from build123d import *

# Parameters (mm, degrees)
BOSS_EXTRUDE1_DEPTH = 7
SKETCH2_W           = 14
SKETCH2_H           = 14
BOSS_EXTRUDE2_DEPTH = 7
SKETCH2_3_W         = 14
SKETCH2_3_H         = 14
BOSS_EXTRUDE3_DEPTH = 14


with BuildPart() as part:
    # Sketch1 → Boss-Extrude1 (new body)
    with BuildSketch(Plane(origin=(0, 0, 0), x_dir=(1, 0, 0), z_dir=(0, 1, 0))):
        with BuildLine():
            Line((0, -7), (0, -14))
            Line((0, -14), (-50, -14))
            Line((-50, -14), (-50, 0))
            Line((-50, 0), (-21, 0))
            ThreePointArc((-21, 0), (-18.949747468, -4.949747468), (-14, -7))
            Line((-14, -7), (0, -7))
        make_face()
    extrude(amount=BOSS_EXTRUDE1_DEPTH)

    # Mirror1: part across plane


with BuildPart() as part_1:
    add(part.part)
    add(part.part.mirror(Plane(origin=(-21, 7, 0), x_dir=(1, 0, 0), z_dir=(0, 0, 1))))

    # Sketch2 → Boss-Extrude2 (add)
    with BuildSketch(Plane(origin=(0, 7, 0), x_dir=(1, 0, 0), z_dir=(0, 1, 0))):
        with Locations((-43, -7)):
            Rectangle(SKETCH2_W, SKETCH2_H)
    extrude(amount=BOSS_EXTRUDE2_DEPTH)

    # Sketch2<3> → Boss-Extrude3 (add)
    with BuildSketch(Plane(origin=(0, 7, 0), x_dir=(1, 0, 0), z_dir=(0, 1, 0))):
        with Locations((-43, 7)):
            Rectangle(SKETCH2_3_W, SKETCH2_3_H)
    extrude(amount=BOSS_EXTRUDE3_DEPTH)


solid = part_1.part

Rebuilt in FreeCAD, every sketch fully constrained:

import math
import FreeCAD as App
import Part
import Sketcher
Q = App.Units.Quantity


def add_polygon(sketch, points):
    """Adds a closed chain of lines whose ends are joined by coincident constraints."""
    first, n = sketch.GeometryCount, len(points)
    for a, b in zip(points, points[1:] + points[:1]):
        sketch.addGeometry(Part.LineSegment(App.Vector(*a, 0), App.Vector(*b, 0)), False)
    for i in range(n):
        sketch.addConstraint(Sketcher.Constraint("Coincident", first + i, 2, first + (i + 1) % n, 1))

doc = App.newDocument("Part")
body = doc.addObject("PartDesign::Body", "Body")

# Sketch on XZ plane
sketch1 = body.newObject("Sketcher::SketchObject", "Sketch")
sketch1.AttachmentSupport = (doc.getObject("XZ_Plane"), [""])
sketch1.MapMode = "FlatFace"
sketch1.addGeometry(Part.LineSegment(App.Vector(0, 14, 0), App.Vector(0, 7, 0)), False)
sketch1.addGeometry(Part.LineSegment(App.Vector(0, 7, 0), App.Vector(-14, 7, 0)), False)
sketch1.addGeometry(Part.ArcOfCircle(Part.Circle(App.Vector(-14, 0, 0), App.Vector(0, 0, 1), 7), math.radians(90), math.radians(180)), False)
sketch1.addGeometry(Part.LineSegment(App.Vector(-21, 0, 0), App.Vector(-50, 0, 0)), False)
sketch1.addGeometry(Part.LineSegment(App.Vector(-50, 0, 0), App.Vector(-50, 14, 0)), False)
sketch1.addGeometry(Part.LineSegment(App.Vector(-50, 14, 0), App.Vector(0, 14, 0)), False)
sketch1.addConstraint(Sketcher.Constraint("Coincident", 0, 2, 1, 1))
sketch1.addConstraint(Sketcher.Constraint("Tangent", 1, 2, 2, 1))
sketch1.addConstraint(Sketcher.Constraint("Coincident", 2, 2, 3, 1))
sketch1.addConstraint(Sketcher.Constraint("Coincident", 3, 2, 4, 1))
sketch1.addConstraint(Sketcher.Constraint("Coincident", 4, 2, 5, 1))
sketch1.addConstraint(Sketcher.Constraint("Coincident", 5, 2, 0, 1))
sketch1.addConstraint(Sketcher.Constraint("Vertical", 0))
sketch1.addConstraint(Sketcher.Constraint("Horizontal", 1))
sketch1.addConstraint(Sketcher.Constraint("Horizontal", 3))
sketch1.addConstraint(Sketcher.Constraint("Vertical", 4))
sketch1.addConstraint(Sketcher.Constraint("Horizontal", 5))
sketch1.addConstraint(Sketcher.Constraint("PointOnObject", 2, 3, -1))
sketch1.addConstraint(Sketcher.Constraint("PointOnObject", 0, 2, -2))
sketch1.addConstraint(Sketcher.Constraint("PointOnObject", 2, 2, -1))
sketch1.addConstraint(Sketcher.Constraint("Equal", 1, 4))
sketch1.addConstraint(Sketcher.Constraint("Radius", 2, Q("7 mm")))
sketch1.addConstraint(Sketcher.Constraint("DistanceX", 1, 2, 1, 1, Q("14 mm")))
sketch1.addConstraint(Sketcher.Constraint("DistanceX", 3, 2, 3, 1, Q("29 mm")))
pad1 = body.newObject("PartDesign::Pad", "Pad")
pad1.Profile = sketch1
pad1.Length = 7
pad1.Reversed = True
body2 = doc.addObject("PartDesign::Body", "Body001")
doc.recompute()

body2.BaseFeature = body
doc.recompute()

mirroring = doc.addObject("Part::Mirroring", "Mirroring")
mirroring.Source = body
mirroring.Base = App.Vector(-21, 7, 0)
mirroring.Normal = App.Vector(0, 0, 1)
body3 = doc.addObject("PartDesign::Body", "Body002")
body3.BaseFeature = mirroring
boolean = body2.newObject("PartDesign::Boolean", "Boolean")
boolean.Type = "Fuse"
boolean.addObjects([body3])
doc.recompute()

# Sketch on XZ plane
sketch2 = body2.newObject("Sketcher::SketchObject", "Sketch001")
sketch2.AttachmentSupport = (doc.getObject("XZ_Plane001"), [""])
sketch2.MapMode = "FlatFace"
sketch2.AttachmentOffset = App.Placement(App.Vector(0, 0, -7), App.Rotation())
add_polygon(sketch2, [(-50, 0), (-50, 14), (-36, 14), (-36, 0)])  # lines 0-3
sketch2.addConstraint(Sketcher.Constraint("Vertical", 0))
sketch2.addConstraint(Sketcher.Constraint("Horizontal", 1))
sketch2.addConstraint(Sketcher.Constraint("Vertical", 2))
sketch2.addConstraint(Sketcher.Constraint("Horizontal", 3))
sketch2.addConstraint(Sketcher.Constraint("PointOnObject", 2, 2, -1))
sketch2.addConstraint(Sketcher.Constraint("Equal", 3, 0))
sketch2.addConstraint(Sketcher.Constraint("DistanceX", 1, 1, 1, 2, Q("14 mm")))
sketch2.addConstraint(Sketcher.Constraint("DistanceX", 0, 2, -1, 1, Q("50 mm")))
pad2 = body2.newObject("PartDesign::Pad", "Pad001")
pad2.Profile = sketch2
pad2.Length = 7
pad2.Reversed = True

# Sketch on XZ plane
sketch3 = body2.newObject("Sketcher::SketchObject", "Sketch002")
sketch3.AttachmentSupport = (doc.getObject("XZ_Plane001"), [""])
sketch3.MapMode = "FlatFace"
sketch3.AttachmentOffset = App.Placement(App.Vector(0, 0, -7), App.Rotation())
add_polygon(sketch3, [(-50, -14), (-50, 0), (-36, 0), (-36, -14)])  # lines 0-3
sketch3.addConstraint(Sketcher.Constraint("Vertical", 0))
sketch3.addConstraint(Sketcher.Constraint("Horizontal", 1))
sketch3.addConstraint(Sketcher.Constraint("Vertical", 2))
sketch3.addConstraint(Sketcher.Constraint("Horizontal", 3))
sketch3.addConstraint(Sketcher.Constraint("PointOnObject", 0, 2, -1))
sketch3.addConstraint(Sketcher.Constraint("Equal", 3, 0))
sketch3.addConstraint(Sketcher.Constraint("DistanceX", 1, 1, 1, 2, Q("14 mm")))
sketch3.addConstraint(Sketcher.Constraint("DistanceX", 0, 2, -1, 1, Q("50 mm")))
pad3 = body2.newObject("PartDesign::Pad", "Pad002")
pad3.Profile = sketch3
pad3.Length = 14
pad3.Reversed = True
mirroring.Visibility = False

doc.recompute()
